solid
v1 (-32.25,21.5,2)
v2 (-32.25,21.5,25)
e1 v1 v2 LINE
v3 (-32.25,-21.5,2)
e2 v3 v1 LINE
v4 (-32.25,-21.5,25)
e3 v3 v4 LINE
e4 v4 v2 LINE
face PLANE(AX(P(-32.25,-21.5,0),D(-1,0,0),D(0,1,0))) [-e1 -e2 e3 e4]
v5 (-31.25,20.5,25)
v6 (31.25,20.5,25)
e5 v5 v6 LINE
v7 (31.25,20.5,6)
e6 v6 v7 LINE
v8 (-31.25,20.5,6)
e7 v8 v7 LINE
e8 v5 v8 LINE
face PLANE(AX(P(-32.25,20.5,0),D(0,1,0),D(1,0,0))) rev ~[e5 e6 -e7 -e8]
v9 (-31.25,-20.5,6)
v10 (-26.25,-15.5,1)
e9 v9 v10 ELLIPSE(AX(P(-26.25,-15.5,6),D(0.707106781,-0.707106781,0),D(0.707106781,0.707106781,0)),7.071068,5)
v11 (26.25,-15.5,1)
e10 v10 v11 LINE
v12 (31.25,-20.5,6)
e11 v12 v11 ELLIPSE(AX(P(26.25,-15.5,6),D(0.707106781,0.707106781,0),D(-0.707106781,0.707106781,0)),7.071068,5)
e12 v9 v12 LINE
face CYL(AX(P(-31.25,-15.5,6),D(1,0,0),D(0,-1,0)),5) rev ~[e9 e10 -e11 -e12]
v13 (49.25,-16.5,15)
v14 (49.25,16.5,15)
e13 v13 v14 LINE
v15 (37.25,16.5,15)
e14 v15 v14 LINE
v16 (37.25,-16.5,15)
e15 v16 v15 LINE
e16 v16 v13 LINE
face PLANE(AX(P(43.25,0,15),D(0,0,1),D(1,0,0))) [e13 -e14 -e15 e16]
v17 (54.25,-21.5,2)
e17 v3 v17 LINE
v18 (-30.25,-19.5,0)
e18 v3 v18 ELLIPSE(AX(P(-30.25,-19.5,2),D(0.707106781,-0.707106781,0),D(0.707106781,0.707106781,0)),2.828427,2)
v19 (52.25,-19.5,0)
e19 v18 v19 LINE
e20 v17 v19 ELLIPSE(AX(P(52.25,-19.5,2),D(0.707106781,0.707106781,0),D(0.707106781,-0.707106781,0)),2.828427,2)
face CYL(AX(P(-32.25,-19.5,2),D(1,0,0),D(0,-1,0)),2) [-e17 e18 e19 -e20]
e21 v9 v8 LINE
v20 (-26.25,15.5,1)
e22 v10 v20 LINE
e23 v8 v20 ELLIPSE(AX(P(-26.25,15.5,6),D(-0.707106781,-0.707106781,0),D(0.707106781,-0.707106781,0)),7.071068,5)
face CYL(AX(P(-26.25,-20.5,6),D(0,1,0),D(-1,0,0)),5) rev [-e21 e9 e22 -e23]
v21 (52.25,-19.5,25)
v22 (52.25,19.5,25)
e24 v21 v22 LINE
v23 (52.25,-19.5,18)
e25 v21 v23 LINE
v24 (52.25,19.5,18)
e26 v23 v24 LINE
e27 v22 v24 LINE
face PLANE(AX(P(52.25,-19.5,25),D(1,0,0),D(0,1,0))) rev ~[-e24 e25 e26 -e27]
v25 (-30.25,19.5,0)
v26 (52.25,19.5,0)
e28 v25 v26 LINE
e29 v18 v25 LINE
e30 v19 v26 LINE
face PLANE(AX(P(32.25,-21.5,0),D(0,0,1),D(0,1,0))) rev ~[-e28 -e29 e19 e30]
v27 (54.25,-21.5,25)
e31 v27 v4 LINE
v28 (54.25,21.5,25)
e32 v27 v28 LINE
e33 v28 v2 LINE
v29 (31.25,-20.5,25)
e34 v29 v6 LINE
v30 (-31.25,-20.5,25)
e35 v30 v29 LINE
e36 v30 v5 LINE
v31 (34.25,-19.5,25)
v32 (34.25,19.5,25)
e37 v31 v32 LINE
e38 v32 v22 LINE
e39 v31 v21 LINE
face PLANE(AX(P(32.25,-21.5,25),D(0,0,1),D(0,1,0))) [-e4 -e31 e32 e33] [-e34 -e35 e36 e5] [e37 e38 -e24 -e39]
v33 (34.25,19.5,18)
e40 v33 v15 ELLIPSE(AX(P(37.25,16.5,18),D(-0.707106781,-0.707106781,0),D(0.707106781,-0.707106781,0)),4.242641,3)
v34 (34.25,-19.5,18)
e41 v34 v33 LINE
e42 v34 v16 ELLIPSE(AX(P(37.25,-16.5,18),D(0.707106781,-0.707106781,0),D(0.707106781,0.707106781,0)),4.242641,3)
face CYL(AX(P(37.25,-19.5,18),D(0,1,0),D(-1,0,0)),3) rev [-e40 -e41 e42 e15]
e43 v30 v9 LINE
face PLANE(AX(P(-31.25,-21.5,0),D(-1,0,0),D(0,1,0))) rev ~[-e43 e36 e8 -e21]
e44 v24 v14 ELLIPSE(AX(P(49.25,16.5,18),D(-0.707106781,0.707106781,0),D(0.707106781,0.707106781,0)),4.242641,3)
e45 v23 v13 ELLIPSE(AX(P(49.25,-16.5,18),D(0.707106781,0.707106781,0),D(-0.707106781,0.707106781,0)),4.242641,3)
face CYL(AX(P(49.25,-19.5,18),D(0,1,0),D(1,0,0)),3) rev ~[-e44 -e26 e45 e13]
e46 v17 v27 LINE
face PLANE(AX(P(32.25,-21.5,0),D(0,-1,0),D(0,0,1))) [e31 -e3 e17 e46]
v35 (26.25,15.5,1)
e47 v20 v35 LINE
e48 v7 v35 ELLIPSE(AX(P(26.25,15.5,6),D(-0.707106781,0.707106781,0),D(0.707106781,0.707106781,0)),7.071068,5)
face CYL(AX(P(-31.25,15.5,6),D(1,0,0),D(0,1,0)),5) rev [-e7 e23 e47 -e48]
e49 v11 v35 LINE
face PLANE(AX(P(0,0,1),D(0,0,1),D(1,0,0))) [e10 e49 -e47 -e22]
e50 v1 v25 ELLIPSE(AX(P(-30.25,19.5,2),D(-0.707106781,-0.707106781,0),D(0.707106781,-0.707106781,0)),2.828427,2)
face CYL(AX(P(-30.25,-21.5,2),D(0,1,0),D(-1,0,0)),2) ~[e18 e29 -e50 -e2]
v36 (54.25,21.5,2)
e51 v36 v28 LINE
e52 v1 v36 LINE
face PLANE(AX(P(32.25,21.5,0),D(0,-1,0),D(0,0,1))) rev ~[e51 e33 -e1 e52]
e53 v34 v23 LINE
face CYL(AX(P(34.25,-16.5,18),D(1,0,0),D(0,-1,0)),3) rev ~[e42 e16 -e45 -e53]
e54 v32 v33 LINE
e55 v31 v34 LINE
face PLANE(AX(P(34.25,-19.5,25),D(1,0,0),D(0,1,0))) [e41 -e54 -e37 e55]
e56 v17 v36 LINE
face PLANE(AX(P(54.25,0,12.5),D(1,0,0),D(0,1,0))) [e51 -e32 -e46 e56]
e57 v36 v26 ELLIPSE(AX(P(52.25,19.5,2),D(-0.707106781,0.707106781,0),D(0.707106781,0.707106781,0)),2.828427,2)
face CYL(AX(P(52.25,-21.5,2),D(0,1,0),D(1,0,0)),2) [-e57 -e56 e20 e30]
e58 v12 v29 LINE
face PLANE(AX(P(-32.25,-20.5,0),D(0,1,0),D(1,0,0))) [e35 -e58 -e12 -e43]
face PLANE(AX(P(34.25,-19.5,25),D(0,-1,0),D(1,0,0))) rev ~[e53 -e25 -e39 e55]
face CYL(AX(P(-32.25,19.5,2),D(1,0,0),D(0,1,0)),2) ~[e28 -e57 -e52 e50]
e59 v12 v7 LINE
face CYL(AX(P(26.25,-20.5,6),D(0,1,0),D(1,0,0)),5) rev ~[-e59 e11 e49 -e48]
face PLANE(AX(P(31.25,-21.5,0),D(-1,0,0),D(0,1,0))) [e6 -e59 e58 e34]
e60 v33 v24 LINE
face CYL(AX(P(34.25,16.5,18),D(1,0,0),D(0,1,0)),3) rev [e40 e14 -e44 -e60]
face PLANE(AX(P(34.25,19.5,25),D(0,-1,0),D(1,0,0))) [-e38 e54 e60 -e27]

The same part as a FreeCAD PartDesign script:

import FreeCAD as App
import Part
import Sketcher

V = App.Vector


def edges_at(feature, points):
    """Names of the edges that pass closest to the given points."""
    edges = feature.Shape.Edges
    near = lambda p: min(range(len(edges)), key=lambda i: edges[i].distToShape(Part.Vertex(*p))[0])
    return sorted({f"Edge{near(p) + 1}" for p in points})


def faces_at(feature, points):
    """Names of the faces that lie closest to the given points."""
    faces = feature.Shape.Faces
    near = lambda p: min(range(len(faces)), key=lambda i: faces[i].distToShape(Part.Vertex(*p))[0])
    return sorted({f"Face{near(p) + 1}" for p in points})

doc = App.newDocument("Part")
body = doc.addObject("PartDesign::Body", "Body")

sketch1 = body.newObject("Sketcher::SketchObject", "Sketch")
sketch1.AttachmentSupport = (doc.getObject("XY_Plane"), [""])
sketch1.MapMode = "FlatFace"
sketch1.addGeometry([
    Part.LineSegment(V(-32.25, 21.5, 0), V(-32.25, -21.5, 0)),
    Part.LineSegment(V(-32.25, -21.5, 0), V(32.25, -21.5, 0)),
    Part.LineSegment(V(32.25, -21.5, 0), V(32.25, 21.5, 0)),
    Part.LineSegment(V(32.25, 21.5, 0), V(-32.25, 21.5, 0)),
], False)
sketch1.addConstraint([
    Sketcher.Constraint("Coincident", 0, 2, 1, 1),
    Sketcher.Constraint("Coincident", 1, 2, 2, 1),
    Sketcher.Constraint("Coincident", 2, 2, 3, 1),
    Sketcher.Constraint("Coincident", 3, 2, 0, 1),
    Sketcher.Constraint("Vertical", 0),
    Sketcher.Constraint("Horizontal", 1),
    Sketcher.Constraint("Vertical", 2),
    Sketcher.Constraint("Horizontal", 3),
    Sketcher.Constraint("Symmetric", 0, 2, 2, 2, -1, 1),
    Sketcher.Constraint("DistanceY", 0, 2, 0, 1, 43.0),
    Sketcher.Constraint("DistanceX", 1, 1, 1, 2, 64.5),
])
pad1 = body.newObject("PartDesign::Pad", "Pad")
pad1.Profile = sketch1
pad1.Length = 25
doc.recompute()

thickness = body.newObject("PartDesign::Thickness", "Thickness")
thickness.Base = (pad1, faces_at(pad1, [(0, 0, 25)]))
thickness.Value = 1
thickness.Reversed = True
thickness.Join = "Arc"
doc.recompute()

fillet = body.newObject("PartDesign::Fillet", "Fillet")
fillet.Base = (thickness, edges_at(thickness, [
    (0, 20.5, 1),
    (31.25, 0, 1),
    (0, -20.5, 1),
    (-31.25, 0, 1),
]))
fillet.Radius = 5

sketch2 = body.newObject("Sketcher::SketchObject", "Sketch001")
sketch2.AttachmentSupport = (doc.getObject("YZ_Plane"), [""])
sketch2.MapMode = "FlatFace"
sketch2.AttachmentOffset = App.Placement(V(0, 0, 32.25), App.Rotation())
sketch2.addGeometry([
    Part.LineSegment(V(-21.5, 25, 0), V(-21.5, 0, 0)),
    Part.LineSegment(V(-21.5, 0, 0), V(21.5, 0, 0)),
    Part.LineSegment(V(21.5, 0, 0), V(21.5, 25, 0)),
    Part.LineSegment(V(21.5, 25, 0), V(-21.5, 25, 0)),
], False)
sketch2.addConstraint([
    Sketcher.Constraint("Coincident", 0, 2, 1, 1),
    Sketcher.Constraint("Coincident", 1, 2, 2, 1),
    Sketcher.Constraint("Coincident", 2, 2, 3, 1),
    Sketcher.Constraint("Coincident", 3, 2, 0, 1),
    Sketcher.Constraint("Vertical", 0),
    Sketcher.Constraint("Horizontal", 1),
    Sketcher.Constraint("Vertical", 2),
    Sketcher.Constraint("Horizontal", 3),
    Sketcher.Constraint("Symmetric", 0, 2, 1, 2, -1, 1),
    Sketcher.Constraint("DistanceX", 1, 1, 1, 2, 43.0),
    Sketcher.Constraint("DistanceY", 0, 2, 0, 1, 25.0),
])
pad2 = body.newObject("PartDesign::Pad", "Pad001")
pad2.Profile = sketch2
pad2.Length = 22

sketch3 = body.newObject("Sketcher::SketchObject", "Sketch002")
sketch3.AttachmentSupport = (doc.getObject("XY_Plane"), [""])
sketch3.MapMode = "FlatFace"
sketch3.AttachmentOffset = App.Placement(V(0, 0, 25), App.Rotation())
sketch3.addGeometry([
    Part.LineSegment(V(34.25, 19.5, 0), V(34.25, -19.5, 0)),
    Part.LineSegment(V(34.25, -19.5, 0), V(52.25, -19.5, 0)),
    Part.LineSegment(V(52.25, -19.5, 0), V(52.25, 19.5, 0)),
    Part.LineSegment(V(52.25, 19.5, 0), V(34.25, 19.5, 0)),
], False)
sketch3.addConstraint([
    Sketcher.Constraint("Coincident", 0, 2, 1, 1),
    Sketcher.Constraint("Coincident", 1, 2, 2, 1),
    Sketcher.Constraint("Coincident", 2, 2, 3, 1),
    Sketcher.Constraint("Coincident", 3, 2, 0, 1),
    Sketcher.Constraint("Vertical", 0),
    Sketcher.Constraint("Horizontal", 1),
    Sketcher.Constraint("Vertical", 2),
    Sketcher.Constraint("Horizontal", 3),
    Sketcher.Constraint("DistanceX", 1, 1, 1, 2, 18.0),
    Sketcher.Constraint("DistanceY", 0, 2, 0, 1, 39.0),
    Sketcher.Constraint("DistanceY", 0, 2, -1, 1, 19.5),
    Sketcher.Constraint("DistanceX", -1, 1, 0, 2, 34.25),
])
pocket1 = body.newObject("PartDesign::Pocket", "Pocket")
pocket1.Profile = sketch3
pocket1.Length = 10
doc.recompute()

fillet2 = body.newObject("PartDesign::Fillet", "Fillet001")
fillet2.Base = (pocket1, edges_at(pocket1, [
    (43.25, 19.5, 15),
    (52.25, 0, 15),
    (43.25, -19.5, 15),
    (34.25, 0, 15),
]))
fillet2.Radius = 3
doc.recompute()

fillet3 = body.newObject("PartDesign::Fillet", "Fillet002")
fillet3.Base = (fillet2, edges_at(fillet2, [
    (11, 21.5, 0),
    (31.25, 0, 6),
    (11, -21.5, 0),
    (-32.25, 0, 0),
    (11, 21.5, 0),
    (11, -21.5, 0),
    (54.25, 0, 0),
]))
fillet3.Radius = 2

doc.recompute()
